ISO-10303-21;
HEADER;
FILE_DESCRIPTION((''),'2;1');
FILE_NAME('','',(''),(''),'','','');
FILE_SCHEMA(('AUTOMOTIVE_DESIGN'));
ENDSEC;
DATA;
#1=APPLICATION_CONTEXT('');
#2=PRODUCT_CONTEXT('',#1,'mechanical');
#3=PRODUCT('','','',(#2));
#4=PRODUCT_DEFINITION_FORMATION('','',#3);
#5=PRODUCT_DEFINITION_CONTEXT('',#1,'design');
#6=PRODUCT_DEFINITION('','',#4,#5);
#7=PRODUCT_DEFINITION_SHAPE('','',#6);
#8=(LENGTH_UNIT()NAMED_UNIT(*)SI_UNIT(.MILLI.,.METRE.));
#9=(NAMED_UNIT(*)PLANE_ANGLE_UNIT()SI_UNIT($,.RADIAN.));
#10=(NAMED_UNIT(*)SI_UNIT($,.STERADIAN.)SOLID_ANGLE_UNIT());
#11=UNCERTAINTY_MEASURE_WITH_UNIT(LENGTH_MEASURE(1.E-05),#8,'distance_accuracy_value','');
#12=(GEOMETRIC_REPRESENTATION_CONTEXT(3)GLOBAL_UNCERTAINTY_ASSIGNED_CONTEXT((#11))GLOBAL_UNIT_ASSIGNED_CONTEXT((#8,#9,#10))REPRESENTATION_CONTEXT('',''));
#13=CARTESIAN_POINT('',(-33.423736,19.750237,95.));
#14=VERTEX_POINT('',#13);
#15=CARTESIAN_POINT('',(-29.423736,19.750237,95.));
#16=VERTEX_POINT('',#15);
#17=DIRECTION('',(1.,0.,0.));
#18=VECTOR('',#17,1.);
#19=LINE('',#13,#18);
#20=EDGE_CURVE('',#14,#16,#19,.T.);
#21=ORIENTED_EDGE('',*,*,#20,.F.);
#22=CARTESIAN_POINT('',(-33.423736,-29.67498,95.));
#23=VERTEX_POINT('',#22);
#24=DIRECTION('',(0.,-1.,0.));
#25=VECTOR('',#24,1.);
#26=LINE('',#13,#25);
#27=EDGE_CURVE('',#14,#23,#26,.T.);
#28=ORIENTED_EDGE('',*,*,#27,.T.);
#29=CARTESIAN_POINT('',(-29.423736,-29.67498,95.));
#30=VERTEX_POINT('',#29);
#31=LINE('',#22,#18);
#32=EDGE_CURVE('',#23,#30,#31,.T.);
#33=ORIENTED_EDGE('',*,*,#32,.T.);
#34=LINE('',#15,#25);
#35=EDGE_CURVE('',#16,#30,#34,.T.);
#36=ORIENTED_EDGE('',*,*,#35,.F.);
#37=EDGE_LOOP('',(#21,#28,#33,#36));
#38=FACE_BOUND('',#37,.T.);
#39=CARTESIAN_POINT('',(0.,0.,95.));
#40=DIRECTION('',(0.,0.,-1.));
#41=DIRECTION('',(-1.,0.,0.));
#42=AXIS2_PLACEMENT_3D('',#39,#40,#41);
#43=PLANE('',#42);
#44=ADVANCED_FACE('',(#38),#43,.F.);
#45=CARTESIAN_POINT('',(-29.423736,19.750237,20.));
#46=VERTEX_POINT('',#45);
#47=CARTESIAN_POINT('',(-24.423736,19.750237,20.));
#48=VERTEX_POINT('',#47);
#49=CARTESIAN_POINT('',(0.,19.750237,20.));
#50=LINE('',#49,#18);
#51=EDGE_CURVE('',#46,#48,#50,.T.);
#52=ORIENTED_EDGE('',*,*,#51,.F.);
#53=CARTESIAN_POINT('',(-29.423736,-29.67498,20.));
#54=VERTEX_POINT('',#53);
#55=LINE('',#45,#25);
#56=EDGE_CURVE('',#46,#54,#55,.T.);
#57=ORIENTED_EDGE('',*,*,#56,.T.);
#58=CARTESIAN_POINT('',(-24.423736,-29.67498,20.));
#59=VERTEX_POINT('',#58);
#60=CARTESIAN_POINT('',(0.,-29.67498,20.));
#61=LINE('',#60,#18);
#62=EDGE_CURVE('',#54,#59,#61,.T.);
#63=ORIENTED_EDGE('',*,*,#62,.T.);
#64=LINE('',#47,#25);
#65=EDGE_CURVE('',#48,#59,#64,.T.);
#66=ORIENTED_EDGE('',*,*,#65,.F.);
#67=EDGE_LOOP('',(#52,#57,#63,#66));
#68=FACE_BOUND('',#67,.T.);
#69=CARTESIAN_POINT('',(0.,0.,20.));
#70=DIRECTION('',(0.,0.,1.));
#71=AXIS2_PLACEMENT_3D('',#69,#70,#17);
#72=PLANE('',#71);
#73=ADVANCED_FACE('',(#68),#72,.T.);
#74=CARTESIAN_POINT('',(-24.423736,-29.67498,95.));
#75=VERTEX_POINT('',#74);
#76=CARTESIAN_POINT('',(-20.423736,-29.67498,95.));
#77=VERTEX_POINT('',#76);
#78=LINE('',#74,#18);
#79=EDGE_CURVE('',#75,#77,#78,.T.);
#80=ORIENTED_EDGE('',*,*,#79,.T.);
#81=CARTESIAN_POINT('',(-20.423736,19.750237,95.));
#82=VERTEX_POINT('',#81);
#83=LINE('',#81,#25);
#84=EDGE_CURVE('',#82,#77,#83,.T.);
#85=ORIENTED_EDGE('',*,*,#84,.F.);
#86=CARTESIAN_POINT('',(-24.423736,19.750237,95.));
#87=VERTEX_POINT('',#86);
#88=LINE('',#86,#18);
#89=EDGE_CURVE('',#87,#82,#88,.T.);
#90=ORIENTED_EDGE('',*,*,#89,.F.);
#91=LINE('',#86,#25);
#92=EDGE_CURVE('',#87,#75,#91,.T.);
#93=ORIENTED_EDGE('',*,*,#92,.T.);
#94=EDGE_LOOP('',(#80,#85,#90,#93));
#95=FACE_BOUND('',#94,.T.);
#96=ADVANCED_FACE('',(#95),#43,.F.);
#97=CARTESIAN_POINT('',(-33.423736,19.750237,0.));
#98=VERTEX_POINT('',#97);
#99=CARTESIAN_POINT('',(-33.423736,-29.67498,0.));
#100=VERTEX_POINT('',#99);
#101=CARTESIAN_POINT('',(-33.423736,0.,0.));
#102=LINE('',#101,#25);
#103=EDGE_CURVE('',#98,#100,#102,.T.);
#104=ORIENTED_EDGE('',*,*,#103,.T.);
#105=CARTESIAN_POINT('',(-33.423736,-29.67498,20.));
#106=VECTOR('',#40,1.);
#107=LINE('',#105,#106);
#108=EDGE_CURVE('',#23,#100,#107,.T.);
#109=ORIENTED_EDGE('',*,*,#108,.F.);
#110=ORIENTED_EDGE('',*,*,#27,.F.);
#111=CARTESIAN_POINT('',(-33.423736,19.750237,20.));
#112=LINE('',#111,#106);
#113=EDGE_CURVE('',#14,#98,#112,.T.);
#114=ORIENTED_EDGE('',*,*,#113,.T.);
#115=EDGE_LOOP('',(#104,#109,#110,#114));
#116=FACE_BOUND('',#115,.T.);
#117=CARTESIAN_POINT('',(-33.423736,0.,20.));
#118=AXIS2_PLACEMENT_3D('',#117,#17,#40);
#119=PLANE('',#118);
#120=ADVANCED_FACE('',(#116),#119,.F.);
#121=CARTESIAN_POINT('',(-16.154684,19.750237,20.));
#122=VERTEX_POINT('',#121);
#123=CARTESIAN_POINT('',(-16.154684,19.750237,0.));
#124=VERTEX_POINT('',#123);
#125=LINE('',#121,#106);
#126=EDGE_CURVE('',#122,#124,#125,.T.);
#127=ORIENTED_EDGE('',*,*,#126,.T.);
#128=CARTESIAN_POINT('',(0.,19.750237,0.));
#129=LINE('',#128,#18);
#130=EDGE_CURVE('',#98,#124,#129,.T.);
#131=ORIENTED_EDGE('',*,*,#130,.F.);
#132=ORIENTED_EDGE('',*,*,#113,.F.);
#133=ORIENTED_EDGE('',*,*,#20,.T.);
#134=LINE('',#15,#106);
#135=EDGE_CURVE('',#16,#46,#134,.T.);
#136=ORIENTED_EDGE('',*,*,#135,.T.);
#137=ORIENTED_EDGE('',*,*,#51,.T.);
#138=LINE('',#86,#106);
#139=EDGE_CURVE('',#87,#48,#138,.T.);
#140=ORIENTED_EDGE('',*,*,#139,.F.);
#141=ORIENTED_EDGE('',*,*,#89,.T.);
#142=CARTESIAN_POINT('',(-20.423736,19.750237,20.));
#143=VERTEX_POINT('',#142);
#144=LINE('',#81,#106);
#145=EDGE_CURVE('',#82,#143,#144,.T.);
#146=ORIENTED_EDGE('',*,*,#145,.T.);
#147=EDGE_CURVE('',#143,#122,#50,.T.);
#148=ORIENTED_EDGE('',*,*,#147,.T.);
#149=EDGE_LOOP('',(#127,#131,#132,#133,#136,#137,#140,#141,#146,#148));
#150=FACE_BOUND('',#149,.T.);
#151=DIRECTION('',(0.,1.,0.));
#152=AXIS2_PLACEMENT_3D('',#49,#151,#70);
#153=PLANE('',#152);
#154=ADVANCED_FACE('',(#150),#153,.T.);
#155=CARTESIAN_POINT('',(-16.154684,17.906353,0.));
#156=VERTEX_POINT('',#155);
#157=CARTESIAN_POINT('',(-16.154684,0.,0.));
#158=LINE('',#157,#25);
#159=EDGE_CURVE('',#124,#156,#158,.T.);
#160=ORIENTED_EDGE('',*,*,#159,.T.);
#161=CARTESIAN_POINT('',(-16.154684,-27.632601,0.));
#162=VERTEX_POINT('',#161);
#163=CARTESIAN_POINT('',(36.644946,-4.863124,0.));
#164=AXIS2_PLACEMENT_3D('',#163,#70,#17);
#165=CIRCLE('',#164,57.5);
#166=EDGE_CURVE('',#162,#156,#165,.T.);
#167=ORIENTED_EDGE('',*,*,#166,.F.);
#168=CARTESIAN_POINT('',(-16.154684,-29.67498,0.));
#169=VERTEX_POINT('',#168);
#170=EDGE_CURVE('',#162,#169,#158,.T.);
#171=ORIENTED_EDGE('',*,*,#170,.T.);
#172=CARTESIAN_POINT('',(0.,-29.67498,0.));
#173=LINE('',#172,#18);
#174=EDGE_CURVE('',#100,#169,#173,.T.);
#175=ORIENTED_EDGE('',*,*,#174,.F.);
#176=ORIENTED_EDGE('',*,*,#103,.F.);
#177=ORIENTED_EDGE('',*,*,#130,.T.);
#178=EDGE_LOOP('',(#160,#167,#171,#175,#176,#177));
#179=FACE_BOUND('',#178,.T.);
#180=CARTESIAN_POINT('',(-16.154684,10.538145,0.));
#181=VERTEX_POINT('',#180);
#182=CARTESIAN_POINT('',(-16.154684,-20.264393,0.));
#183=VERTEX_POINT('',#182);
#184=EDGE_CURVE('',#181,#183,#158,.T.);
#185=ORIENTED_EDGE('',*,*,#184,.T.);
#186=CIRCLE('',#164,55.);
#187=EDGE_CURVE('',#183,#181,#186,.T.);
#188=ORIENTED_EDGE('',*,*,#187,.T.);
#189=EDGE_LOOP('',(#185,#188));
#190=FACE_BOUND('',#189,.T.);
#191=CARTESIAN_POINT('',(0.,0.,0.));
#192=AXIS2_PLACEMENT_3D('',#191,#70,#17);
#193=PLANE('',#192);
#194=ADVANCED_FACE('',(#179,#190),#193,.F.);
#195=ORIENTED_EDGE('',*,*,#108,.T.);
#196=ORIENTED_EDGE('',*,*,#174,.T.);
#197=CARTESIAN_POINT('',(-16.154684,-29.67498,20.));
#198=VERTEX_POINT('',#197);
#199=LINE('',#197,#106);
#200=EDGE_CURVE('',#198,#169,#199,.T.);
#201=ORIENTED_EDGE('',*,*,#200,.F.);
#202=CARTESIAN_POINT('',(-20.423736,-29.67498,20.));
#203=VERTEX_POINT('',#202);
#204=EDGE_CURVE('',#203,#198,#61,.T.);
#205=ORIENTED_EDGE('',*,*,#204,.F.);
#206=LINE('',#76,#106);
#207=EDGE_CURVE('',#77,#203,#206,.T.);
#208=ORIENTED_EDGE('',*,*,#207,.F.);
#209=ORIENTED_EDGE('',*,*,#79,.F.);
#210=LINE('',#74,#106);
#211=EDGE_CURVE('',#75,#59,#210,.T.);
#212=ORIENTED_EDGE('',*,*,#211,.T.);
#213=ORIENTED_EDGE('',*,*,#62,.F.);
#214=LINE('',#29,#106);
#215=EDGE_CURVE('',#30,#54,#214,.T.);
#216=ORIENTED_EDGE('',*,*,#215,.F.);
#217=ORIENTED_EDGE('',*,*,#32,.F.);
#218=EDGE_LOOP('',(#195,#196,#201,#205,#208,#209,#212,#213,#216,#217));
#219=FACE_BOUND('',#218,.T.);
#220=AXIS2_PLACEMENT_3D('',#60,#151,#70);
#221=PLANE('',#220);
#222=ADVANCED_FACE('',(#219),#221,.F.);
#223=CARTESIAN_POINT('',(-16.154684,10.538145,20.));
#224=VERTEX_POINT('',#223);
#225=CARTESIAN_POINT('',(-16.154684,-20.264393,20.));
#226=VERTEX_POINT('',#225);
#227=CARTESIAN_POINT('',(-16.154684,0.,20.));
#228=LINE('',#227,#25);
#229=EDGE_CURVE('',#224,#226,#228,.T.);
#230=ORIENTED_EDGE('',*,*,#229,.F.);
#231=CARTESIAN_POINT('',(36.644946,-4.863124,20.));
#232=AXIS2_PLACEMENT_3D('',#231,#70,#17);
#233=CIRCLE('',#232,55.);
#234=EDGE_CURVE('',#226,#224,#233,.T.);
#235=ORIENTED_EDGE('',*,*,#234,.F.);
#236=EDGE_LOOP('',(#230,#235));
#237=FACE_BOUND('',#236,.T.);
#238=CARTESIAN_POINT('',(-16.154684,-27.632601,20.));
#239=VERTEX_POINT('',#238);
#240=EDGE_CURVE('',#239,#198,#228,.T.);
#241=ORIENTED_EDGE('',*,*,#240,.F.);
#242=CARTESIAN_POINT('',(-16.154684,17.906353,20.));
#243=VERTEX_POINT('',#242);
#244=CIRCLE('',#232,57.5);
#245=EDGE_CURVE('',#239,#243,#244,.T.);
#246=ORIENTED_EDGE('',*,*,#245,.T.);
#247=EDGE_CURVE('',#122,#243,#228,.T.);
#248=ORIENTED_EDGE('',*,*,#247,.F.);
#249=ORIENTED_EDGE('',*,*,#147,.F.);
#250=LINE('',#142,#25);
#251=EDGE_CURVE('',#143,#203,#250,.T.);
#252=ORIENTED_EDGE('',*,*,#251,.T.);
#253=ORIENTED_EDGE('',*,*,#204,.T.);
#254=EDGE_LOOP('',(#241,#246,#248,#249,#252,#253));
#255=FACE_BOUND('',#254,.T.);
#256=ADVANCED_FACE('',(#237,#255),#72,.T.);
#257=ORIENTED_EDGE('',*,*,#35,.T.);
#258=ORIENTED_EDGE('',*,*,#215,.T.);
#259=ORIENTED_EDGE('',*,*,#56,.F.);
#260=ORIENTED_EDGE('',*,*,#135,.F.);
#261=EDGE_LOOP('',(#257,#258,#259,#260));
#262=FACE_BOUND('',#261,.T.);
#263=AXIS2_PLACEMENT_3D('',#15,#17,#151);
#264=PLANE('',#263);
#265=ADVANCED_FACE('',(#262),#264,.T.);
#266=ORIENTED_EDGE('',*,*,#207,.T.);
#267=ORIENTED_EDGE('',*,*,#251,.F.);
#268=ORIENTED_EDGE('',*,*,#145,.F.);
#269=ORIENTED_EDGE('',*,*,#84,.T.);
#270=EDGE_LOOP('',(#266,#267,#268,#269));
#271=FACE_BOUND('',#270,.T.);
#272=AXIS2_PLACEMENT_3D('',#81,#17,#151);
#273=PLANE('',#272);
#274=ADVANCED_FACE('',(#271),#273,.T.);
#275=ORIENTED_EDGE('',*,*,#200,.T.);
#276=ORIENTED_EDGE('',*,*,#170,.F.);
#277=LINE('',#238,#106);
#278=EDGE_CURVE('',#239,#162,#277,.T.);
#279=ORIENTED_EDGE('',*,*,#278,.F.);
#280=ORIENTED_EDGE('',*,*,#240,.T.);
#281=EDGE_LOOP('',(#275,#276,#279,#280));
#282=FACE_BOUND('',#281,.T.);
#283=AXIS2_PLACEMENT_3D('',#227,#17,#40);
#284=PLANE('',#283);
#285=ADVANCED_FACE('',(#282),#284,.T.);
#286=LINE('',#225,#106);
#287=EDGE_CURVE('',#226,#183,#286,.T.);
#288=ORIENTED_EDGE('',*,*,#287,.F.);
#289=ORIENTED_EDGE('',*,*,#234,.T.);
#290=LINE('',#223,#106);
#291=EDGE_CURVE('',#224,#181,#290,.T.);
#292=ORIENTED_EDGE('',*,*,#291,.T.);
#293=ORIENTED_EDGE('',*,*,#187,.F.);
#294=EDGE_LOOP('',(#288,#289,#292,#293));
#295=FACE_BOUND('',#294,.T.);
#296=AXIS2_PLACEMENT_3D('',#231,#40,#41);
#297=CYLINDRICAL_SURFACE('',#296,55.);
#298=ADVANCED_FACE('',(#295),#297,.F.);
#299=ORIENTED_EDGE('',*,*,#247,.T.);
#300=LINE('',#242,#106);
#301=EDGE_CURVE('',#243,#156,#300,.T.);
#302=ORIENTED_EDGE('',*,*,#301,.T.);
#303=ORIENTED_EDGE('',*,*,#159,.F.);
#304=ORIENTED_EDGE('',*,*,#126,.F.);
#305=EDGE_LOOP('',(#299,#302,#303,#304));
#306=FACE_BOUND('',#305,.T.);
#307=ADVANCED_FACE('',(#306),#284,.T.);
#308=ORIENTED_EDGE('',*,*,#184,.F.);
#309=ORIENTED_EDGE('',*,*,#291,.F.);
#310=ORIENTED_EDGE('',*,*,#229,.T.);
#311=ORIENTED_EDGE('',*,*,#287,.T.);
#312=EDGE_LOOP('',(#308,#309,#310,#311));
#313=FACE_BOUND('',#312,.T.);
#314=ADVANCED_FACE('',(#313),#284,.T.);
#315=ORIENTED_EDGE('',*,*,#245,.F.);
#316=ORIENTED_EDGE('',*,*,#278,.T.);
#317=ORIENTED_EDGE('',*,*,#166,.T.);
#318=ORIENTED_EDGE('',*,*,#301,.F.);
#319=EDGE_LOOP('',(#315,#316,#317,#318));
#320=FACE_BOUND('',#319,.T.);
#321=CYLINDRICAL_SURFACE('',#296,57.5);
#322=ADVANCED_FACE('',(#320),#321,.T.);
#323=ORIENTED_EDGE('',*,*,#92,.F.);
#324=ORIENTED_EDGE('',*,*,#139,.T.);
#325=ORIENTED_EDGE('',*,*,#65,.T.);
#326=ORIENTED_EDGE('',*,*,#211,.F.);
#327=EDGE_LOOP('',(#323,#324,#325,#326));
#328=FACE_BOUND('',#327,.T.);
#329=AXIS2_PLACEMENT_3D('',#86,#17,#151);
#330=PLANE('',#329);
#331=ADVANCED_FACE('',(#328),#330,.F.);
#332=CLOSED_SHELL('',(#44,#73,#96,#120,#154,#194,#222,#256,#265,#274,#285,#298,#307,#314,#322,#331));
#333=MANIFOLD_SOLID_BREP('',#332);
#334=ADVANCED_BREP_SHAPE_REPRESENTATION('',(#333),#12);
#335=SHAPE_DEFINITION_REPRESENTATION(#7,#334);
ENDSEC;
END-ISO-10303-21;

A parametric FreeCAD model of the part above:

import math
import FreeCAD as App
import Part
import Sketcher

V = App.Vector


def add_polygon(sketch, points):
    """Adds a closed chain of lines whose ends are joined by coincident constraints."""
    first, n = sketch.GeometryCount, len(points)
    for a, b in zip(points, points[1:] + points[:1]):
        sketch.addGeometry(Part.LineSegment(App.Vector(*a, 0), App.Vector(*b, 0)), False)
    for i in range(n):
        sketch.addConstraint(Sketcher.Constraint("Coincident", first + i, 2, first + (i + 1) % n, 1))

doc = App.newDocument("Part")
body = doc.addObject("PartDesign::Body", "Body")

# Sketch on XY plane
sketch1 = body.newObject("Sketcher::SketchObject", "Sketch")
sketch1.AttachmentSupport = (doc.getObject("XY_Plane"), [""])
sketch1.MapMode = "FlatFace"
sketch1.addGeometry([
    Part.ArcOfCircle(Part.Circle(V(36.644946, -4.863124, 0), V(0, 0, 1), 57.5), math.radians(-156.672211), math.radians(156.672211)),  # 0
    Part.LineSegment(V(-16.154684, 17.906353, 0), V(-16.154684, 19.750237, 0)),  # 1
    Part.LineSegment(V(-16.154684, 19.750237, 0), V(-33.423736, 19.750237, 0)),  # 2
    Part.LineSegment(V(-33.423736, 19.750237, 0), V(-33.423736, -29.67498, 0)),  # 3
    Part.LineSegment(V(-33.423736, -29.67498, 0), V(-16.154684, -29.67498, 0)),  # 4
    Part.LineSegment(V(-16.154684, -29.67498, 0), V(-16.154684, -27.632601, 0)),  # 5
    Part.LineSegment(V(-16.154684, -20.264393, 0), V(-16.154684, 10.538145, 0)),  # 6
    Part.ArcOfCircle(Part.Circle(V(36.644946, -4.863124, 0), V(0, 0, 1), 55), math.radians(-163.738418), math.radians(163.738418)),  # 7
], False)
sketch1.addConstraint([
    Sketcher.Constraint("Coincident", 0, 2, 1, 1),
    Sketcher.Constraint("Coincident", 1, 2, 2, 1),
    Sketcher.Constraint("Coincident", 2, 2, 3, 1),
    Sketcher.Constraint("Coincident", 3, 2, 4, 1),
    Sketcher.Constraint("Coincident", 4, 2, 5, 1),
    Sketcher.Constraint("Coincident", 5, 2, 0, 1),
    Sketcher.Constraint("Coincident", 6, 1, 7, 1),
    Sketcher.Constraint("Coincident", 7, 2, 6, 2),
    Sketcher.Constraint("Vertical", 1),
    Sketcher.Constraint("Horizontal", 2),
    Sketcher.Constraint("Vertical", 3),
    Sketcher.Constraint("Horizontal", 4),
    Sketcher.Constraint("Vertical", 5),
    Sketcher.Constraint("Vertical", 6),
    Sketcher.Constraint("Coincident", 7, 3, 0, 3),
    Sketcher.Constraint("Vertical", 1, 2, 4, 2),
    Sketcher.Constraint("Vertical", 5, 2, 6, 1),
    Sketcher.Constraint("Radius", 7, 55.0),
    Sketcher.Constraint("Radius", 0, 57.5),
    Sketcher.Constraint("DistanceX", 2, 2, 2, 1, 17.269052),
    Sketcher.Constraint("DistanceY", 5, 1, 5, 2, 2.042379),
    Sketcher.Constraint("DistanceY", 5, 2, -1, 1, 27.632601),
    Sketcher.Constraint("DistanceY", 1, 1, 1, 2, 1.843884),
    Sketcher.Constraint("DistanceY", 3, 2, 3, 1, 49.425217),
    Sketcher.Constraint("DistanceX", -1, 1, 0, 3, 36.644946),
])
pad1 = body.newObject("PartDesign::Pad", "Pad")
pad1.Profile = sketch1
pad1.Length = 20

# Sketch on XY plane
sketch2 = body.newObject("Sketcher::SketchObject", "Sketch001")
sketch2.AttachmentSupport = (doc.getObject("XY_Plane"), [""])
sketch2.MapMode = "FlatFace"
sketch2.AttachmentOffset = App.Placement(V(0, 0, 20), App.Rotation())
add_polygon(sketch2, [(-33.423736, 19.750237), (-33.423736, -29.67498), (-29.423736, -29.67498), (-29.423736, 19.750237)])  # lines 0-3
add_polygon(sketch2, [(-24.423736, 19.750237), (-24.423736, -29.67498), (-20.423736, -29.67498), (-20.423736, 19.750237)])  # lines 4-7
sketch2.addConstraint([
    Sketcher.Constraint("Vertical", 0),
    Sketcher.Constraint("Horizontal", 1),
    Sketcher.Constraint("Vertical", 2),
    Sketcher.Constraint("Horizontal", 3),
    Sketcher.Constraint("Vertical", 4),
    Sketcher.Constraint("Horizontal", 5),
    Sketcher.Constraint("Vertical", 6),
    Sketcher.Constraint("Horizontal", 7),
    Sketcher.Constraint("Horizontal", 1, 2, 4, 2),
    Sketcher.Constraint("Horizontal", 3, 2, 6, 2),
    Sketcher.Constraint("Equal", 3, 5),
    Sketcher.Constraint("DistanceX", 1, 1, 1, 2, 4.0),
    Sketcher.Constraint("DistanceX", 1, 2, 4, 2, 5.0),
    Sketcher.Constraint("DistanceY", 0, 2, 0, 1, 49.425217),
    Sketcher.Constraint("DistanceY", 0, 2, -1, 1, 29.67498),
    Sketcher.Constraint("DistanceX", 0, 2, -1, 1, 33.423736),
])
pad2 = body.newObject("PartDesign::Pad", "Pad001")
pad2.Profile = sketch2
pad2.Length = 75

doc.recompute()
